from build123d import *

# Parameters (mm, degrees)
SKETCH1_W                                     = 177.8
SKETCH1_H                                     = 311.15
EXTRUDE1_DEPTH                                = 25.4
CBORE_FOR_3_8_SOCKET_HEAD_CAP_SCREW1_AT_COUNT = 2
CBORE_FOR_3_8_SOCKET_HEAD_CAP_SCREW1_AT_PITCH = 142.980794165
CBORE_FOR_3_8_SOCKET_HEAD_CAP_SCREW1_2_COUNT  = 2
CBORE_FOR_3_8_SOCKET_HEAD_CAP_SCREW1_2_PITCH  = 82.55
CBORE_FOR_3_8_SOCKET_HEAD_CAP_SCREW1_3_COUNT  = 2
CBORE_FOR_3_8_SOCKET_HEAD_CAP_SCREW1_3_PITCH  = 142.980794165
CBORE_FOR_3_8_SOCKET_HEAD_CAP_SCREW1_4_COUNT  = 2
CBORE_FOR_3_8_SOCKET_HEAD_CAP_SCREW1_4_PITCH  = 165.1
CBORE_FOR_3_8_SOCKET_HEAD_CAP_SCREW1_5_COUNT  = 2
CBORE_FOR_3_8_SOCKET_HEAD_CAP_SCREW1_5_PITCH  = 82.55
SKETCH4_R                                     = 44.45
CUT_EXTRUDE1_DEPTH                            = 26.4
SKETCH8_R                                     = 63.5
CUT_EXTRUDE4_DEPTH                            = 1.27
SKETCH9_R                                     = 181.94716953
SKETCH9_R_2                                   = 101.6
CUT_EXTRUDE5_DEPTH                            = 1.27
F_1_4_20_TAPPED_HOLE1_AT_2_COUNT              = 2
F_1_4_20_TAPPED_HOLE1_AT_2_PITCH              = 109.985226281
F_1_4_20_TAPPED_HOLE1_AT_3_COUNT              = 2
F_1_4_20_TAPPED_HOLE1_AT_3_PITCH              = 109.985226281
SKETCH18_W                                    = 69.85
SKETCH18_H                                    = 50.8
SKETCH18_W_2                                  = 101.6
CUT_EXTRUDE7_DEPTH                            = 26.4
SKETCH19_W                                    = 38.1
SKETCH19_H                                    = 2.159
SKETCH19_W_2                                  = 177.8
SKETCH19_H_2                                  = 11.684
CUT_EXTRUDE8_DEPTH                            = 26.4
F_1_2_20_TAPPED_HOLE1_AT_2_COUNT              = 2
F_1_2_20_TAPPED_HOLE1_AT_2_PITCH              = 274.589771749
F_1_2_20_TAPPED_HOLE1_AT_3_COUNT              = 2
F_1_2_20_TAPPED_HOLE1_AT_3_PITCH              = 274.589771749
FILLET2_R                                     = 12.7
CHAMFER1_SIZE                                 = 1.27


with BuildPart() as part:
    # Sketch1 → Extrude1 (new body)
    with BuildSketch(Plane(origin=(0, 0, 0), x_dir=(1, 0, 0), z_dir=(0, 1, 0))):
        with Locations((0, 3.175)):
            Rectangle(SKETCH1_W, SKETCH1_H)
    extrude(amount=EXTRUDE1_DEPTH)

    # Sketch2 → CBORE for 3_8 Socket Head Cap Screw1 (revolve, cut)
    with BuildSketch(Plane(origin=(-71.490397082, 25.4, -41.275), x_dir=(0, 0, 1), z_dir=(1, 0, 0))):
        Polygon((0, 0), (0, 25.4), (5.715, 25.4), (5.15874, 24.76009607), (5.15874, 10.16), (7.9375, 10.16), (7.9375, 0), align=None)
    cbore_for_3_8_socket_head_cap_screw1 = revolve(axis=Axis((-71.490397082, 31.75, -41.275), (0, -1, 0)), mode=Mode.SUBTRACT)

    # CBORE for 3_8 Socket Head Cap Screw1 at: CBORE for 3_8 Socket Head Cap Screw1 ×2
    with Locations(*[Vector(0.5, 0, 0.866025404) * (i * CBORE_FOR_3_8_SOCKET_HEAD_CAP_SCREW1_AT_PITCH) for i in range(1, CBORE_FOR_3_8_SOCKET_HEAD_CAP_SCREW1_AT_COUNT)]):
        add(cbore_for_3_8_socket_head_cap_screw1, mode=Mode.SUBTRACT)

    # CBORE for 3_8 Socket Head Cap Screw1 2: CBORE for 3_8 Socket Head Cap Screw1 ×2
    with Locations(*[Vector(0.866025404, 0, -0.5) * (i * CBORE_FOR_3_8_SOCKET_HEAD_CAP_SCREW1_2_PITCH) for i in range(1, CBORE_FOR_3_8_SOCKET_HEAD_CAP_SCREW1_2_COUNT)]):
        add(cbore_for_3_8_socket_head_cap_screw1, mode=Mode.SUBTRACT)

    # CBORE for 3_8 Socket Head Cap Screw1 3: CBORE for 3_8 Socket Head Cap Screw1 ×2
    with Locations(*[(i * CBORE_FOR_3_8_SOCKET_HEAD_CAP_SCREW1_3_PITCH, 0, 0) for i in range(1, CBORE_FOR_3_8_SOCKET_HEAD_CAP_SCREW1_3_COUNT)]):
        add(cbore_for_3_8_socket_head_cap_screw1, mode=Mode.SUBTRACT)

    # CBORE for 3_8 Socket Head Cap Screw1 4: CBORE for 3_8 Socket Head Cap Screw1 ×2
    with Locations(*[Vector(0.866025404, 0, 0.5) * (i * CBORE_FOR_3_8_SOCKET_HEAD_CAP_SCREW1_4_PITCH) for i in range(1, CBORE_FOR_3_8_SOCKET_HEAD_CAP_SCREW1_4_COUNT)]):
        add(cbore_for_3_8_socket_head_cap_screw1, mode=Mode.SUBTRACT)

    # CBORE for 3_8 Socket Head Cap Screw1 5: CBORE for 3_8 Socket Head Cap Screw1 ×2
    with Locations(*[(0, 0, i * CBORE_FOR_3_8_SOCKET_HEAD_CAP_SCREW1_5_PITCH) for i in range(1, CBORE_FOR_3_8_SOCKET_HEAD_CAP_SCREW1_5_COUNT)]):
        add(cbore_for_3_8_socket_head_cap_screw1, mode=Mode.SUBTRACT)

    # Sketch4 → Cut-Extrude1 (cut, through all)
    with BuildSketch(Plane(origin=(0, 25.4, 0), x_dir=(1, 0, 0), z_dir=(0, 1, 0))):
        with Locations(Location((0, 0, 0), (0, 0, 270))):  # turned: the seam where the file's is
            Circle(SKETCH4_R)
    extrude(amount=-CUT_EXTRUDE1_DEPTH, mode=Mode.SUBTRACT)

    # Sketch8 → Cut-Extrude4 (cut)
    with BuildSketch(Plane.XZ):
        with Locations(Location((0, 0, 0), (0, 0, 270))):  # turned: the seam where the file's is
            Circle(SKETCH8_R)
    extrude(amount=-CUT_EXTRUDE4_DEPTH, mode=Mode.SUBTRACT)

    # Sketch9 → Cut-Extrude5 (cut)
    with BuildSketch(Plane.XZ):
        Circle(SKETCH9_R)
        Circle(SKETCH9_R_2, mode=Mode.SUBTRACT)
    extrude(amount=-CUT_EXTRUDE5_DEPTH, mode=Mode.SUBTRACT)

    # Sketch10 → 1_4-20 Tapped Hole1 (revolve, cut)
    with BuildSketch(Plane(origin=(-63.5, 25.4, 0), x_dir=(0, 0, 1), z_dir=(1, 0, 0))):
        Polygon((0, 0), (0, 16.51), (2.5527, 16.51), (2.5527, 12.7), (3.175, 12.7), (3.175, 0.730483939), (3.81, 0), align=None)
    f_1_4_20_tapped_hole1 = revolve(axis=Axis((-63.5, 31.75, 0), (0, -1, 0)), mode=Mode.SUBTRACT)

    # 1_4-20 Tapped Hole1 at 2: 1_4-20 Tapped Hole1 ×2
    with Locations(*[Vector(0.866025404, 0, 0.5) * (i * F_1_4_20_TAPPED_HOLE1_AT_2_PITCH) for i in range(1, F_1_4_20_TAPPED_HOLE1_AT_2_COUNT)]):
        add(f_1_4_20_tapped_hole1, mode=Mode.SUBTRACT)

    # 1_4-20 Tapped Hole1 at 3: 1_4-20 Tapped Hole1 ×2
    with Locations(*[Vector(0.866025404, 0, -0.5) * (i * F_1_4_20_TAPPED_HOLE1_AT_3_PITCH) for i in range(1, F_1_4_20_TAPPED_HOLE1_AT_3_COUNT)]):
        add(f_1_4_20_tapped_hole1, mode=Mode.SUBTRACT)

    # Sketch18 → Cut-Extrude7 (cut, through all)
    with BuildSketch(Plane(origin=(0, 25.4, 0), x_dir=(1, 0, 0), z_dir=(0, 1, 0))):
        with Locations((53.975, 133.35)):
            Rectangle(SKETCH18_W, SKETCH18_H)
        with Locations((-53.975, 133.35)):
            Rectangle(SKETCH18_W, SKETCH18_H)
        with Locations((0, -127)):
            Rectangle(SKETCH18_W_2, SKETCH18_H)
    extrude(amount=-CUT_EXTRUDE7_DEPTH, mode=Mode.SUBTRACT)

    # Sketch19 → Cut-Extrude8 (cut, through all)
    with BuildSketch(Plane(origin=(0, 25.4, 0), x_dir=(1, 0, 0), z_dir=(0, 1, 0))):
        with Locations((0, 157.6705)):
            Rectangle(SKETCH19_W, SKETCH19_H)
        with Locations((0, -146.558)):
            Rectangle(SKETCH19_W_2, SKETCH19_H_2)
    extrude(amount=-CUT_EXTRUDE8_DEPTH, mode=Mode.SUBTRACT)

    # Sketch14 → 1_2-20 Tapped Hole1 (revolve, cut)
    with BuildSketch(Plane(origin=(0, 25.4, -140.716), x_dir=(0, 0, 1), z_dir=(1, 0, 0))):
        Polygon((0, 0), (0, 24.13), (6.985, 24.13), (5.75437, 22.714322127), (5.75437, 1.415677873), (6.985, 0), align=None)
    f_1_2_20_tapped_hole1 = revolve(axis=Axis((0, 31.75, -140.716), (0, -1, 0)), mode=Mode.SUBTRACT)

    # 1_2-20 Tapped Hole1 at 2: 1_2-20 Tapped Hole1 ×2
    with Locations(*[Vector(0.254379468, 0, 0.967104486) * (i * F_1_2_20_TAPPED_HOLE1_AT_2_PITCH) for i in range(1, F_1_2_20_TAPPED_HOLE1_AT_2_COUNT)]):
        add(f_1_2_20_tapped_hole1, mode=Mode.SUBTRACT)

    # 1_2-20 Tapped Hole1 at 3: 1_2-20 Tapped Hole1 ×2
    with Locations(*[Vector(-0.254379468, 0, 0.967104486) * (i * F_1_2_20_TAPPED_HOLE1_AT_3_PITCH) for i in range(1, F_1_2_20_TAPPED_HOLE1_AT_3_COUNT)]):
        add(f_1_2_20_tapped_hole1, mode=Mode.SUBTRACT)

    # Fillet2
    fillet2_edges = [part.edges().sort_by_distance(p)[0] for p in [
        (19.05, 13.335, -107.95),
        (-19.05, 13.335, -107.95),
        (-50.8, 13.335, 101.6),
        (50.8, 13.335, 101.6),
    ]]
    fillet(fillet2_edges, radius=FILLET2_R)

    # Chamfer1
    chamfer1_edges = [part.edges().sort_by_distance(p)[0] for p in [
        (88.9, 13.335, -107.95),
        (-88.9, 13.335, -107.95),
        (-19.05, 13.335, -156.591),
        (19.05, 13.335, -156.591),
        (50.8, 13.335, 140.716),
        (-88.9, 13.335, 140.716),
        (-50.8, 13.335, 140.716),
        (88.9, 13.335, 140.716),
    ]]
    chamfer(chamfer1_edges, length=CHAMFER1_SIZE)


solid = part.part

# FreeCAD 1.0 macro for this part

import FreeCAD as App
import Part
import Sketcher

V = App.Vector
Q = App.Units.Quantity


def edges_at(feature, points):
    """Names of the edges that pass closest to the given points."""
    edges = feature.Shape.Edges
    near = lambda p: min(range(len(edges)), key=lambda i: edges[i].distToShape(Part.Vertex(*p))[0])
    return sorted({f"Edge{near(p) + 1}" for p in points})


def add_polygon(sketch, points):
    """Adds a closed chain of lines whose ends are joined by coincident constraints."""
    first, n = sketch.GeometryCount, len(points)
    for a, b in zip(points, points[1:] + points[:1]):
        sketch.addGeometry(Part.LineSegment(App.Vector(*a, 0), App.Vector(*b, 0)), False)
    for i in range(n):
        sketch.addConstraint(Sketcher.Constraint("Coincident", first + i, 2, first + (i + 1) % n, 1))

doc = App.newDocument("Part")
body = doc.addObject("PartDesign::Body", "Body")

# Sketch on XZ plane
sketch1 = doc.addObject("Sketcher::SketchObject", "Sketch")
body.addObject(sketch1)
sketch1.AttachmentSupport = (doc.XZ_Plane, [""])
sketch1.MapMode = "FlatFace"
add_polygon(sketch1, [(-89, -159), (-89, 152), (89, 152), (89, -159)])  # lines 0-3
sketch1.addConstraint(Sketcher.Constraint("Vertical", 0))
sketch1.addConstraint(Sketcher.Constraint("Horizontal", 1))
sketch1.addConstraint(Sketcher.Constraint("Vertical", 2))
sketch1.addConstraint(Sketcher.Constraint("Horizontal", 3))
sketch1.addConstraint(Sketcher.Constraint("DistanceX", 1, 1, 1, 2, Q("7 in")))
sketch1.addConstraint(Sketcher.Constraint("DistanceY", -1, 1, 0, 2, Q("6 in")))
sketch1.addConstraint(Sketcher.Constraint("DistanceY", 0, 1, 0, 2, Q("12.25 in")))
sketch1.addConstraint(Sketcher.Constraint("DistanceX", 0, 2, -1, 1, Q("3.5 in")))
pad1 = doc.addObject("PartDesign::Pad", "Pad")
body.addObject(pad1)
pad1.Profile = sketch1
pad1.Length = Q("1 in")
pad1.Reversed = True

# Sketch on YZ plane
sketch2 = doc.addObject("Sketcher::SketchObject", "Sketch001")
body.addObject(sketch2)
sketch2.AttachmentSupport = (doc.YZ_Plane, [""])
sketch2.MapMode = "FlatFace"
sketch2.AttachmentOffset = App.Placement(V(0, 0, -71.490397), App.Rotation())
add_polygon(sketch2, [(0, -41.3), (25.4, -41.3), (25.4, -33.3), (15.2, -33.3), (15.2, -36.1), (0.6, -36.1), (0, -35.6)])  # lines 0-6
sketch2.addGeometry(Part.LineSegment(V(25.4, -41.3, 0), V(0, -41.3, 0)), True)  # axis
sketch2.addConstraint(Sketcher.Constraint("Horizontal", 0))
sketch2.addConstraint(Sketcher.Constraint("Vertical", 1))
sketch2.addConstraint(Sketcher.Constraint("Horizontal", 2))
sketch2.addConstraint(Sketcher.Constraint("Vertical", 3))
sketch2.addConstraint(Sketcher.Constraint("Horizontal", 4))
sketch2.addConstraint(Sketcher.Constraint("Vertical", 6))
sketch2.addConstraint(Sketcher.Constraint("Horizontal", 7))
sketch2.addConstraint(Sketcher.Constraint("Coincident", 7, 1, 0, 2))
sketch2.addConstraint(Sketcher.Constraint("PointOnObject", 5, 2, -2))
sketch2.addConstraint(Sketcher.Constraint("PointOnObject", 7, 2, -2))
sketch2.addConstraint(Sketcher.Constraint("DistanceX", 0, 1, 0, 2, Q("1 in")))
sketch2.addConstraint(Sketcher.Constraint("DistanceX", 2, 2, 2, 1, Q("0.4 in")))
sketch2.addConstraint(Sketcher.Constraint("Angle", 5, Q("139 deg")))
sketch2.addConstraint(Sketcher.Constraint("DistanceY", 5, 2, -1, 1, Q("1.4 in")))
sketch2.addConstraint(Sketcher.Constraint("DistanceY", 1, 1, 1, 2, Q("0.3125 in")))
sketch2.addConstraint(Sketcher.Constraint("DistanceY", 6, 2, 6, 1, Q("0.225 in")))
sketch2.addConstraint(Sketcher.Constraint("DistanceY", 3, 2, 3, 1, Q("0.1094 in")))
groove = doc.addObject("PartDesign::Groove", "Groove")
body.addObject(groove)
groove.Profile = sketch2
groove.ReferenceAxis = (sketch2, ["Axis0"])
groove.Angle = 360
doc.recompute()

datumline = doc.addObject("PartDesign::Line", "DatumLine")
body.addObject(datumline)
datumline.Placement = App.Placement(V(0, 0, 0), App.Rotation(V(0, 0, 1), V(0.5, 0, 0.866025404)))
linearpattern = doc.addObject("PartDesign::LinearPattern", "LinearPattern")
body.addObject(linearpattern)
linearpattern.Originals = [groove]
linearpattern.Direction = (datumline, [""])
linearpattern.Mode = "offset"
linearpattern.Offset = 142.980794
linearpattern.Occurrences = 2
body.Tip = linearpattern
doc.recompute()

datumline2 = doc.addObject("PartDesign::Line", "DatumLine001")
body.addObject(datumline2)
datumline2.Placement = App.Placement(V(0, 0, 0), App.Rotation(V(0, 0, 1), V(0.866025404, 0, -0.5)))
linearpattern2 = doc.addObject("PartDesign::LinearPattern", "LinearPattern001")
body.addObject(linearpattern2)
linearpattern2.Originals = [groove]
linearpattern2.Direction = (datumline2, [""])
linearpattern2.Mode = "offset"
linearpattern2.Offset = Q("3.25 in")
linearpattern2.Occurrences = 2
body.Tip = linearpattern2
doc.recompute()

linearpattern3 = doc.addObject("PartDesign::LinearPattern", "LinearPattern002")
body.addObject(linearpattern3)
linearpattern3.Originals = [groove]
linearpattern3.Direction = (doc.X_Axis, [""])
linearpattern3.Mode = "offset"
linearpattern3.Offset = 142.980794
linearpattern3.Occurrences = 2
body.Tip = linearpattern3
doc.recompute()

datumline3 = doc.addObject("PartDesign::Line", "DatumLine002")
body.addObject(datumline3)
datumline3.Placement = App.Placement(V(0, 0, 0), App.Rotation(V(0, 0, 1), V(0.866025404, 0, 0.5)))
linearpattern4 = doc.addObject("PartDesign::LinearPattern", "LinearPattern003")
body.addObject(linearpattern4)
linearpattern4.Originals = [groove]
linearpattern4.Direction = (datumline3, [""])
linearpattern4.Mode = "offset"
linearpattern4.Offset = Q("6.5 in")
linearpattern4.Occurrences = 2
body.Tip = linearpattern4
doc.recompute()

linearpattern5 = doc.addObject("PartDesign::LinearPattern", "LinearPattern004")
body.addObject(linearpattern5)
linearpattern5.Originals = [groove]
linearpattern5.Direction = (doc.Z_Axis, [""])
linearpattern5.Mode = "offset"
linearpattern5.Offset = Q("3.25 in")
linearpattern5.Occurrences = 2
body.Tip = linearpattern5

# Sketch on XZ plane
sketch3 = doc.addObject("Sketcher::SketchObject", "Sketch002")
body.addObject(sketch3)
sketch3.AttachmentSupport = (doc.XZ_Plane, [""])
sketch3.MapMode = "FlatFace"
sketch3.AttachmentOffset = App.Placement(V(0, 0, -1 * 25.4), App.Rotation())
sketch3.addGeometry(Part.Circle(V(0, 0, 0), V(0, 0, 1), 44), False)
sketch3.addConstraint(Sketcher.Constraint("Coincident", 0, 3, -1, 1))
sketch3.addConstraint(Sketcher.Constraint("Diameter", 0, Q("3.5 in")))
pocket1 = doc.addObject("PartDesign::Pocket", "Pocket")
body.addObject(pocket1)
pocket1.Profile = sketch3
pocket1.Type = "ThroughAll"
pocket1.Reversed = True

# Sketch on XZ plane
sketch4 = doc.addObject("Sketcher::SketchObject", "Sketch003")
body.addObject(sketch4)
sketch4.AttachmentSupport = (doc.XZ_Plane, [""])
sketch4.MapMode = "FlatFace"
sketch4.addGeometry(Part.Circle(V(0, 0, 0), V(0, 0, 1), 64), False)
sketch4.addConstraint(Sketcher.Constraint("Coincident", 0, 3, -1, 1))
sketch4.addConstraint(Sketcher.Constraint("Diameter", 0, Q("5 in")))
pocket2 = doc.addObject("PartDesign::Pocket", "Pocket001")
body.addObject(pocket2)
pocket2.Profile = sketch4
pocket2.Length = Q("0.05 in")

# Sketch on XZ plane
sketch5 = doc.addObject("Sketcher::SketchObject", "Sketch004")
body.addObject(sketch5)
sketch5.AttachmentSupport = (doc.XZ_Plane, [""])
sketch5.MapMode = "FlatFace"
sketch5.addGeometry(Part.Circle(V(0, 0, 0), V(0, 0, 1), 182), False)
sketch5.addGeometry(Part.Circle(V(0, 0, 0), V(0, 0, 1), 102), False)
sketch5.addConstraint(Sketcher.Constraint("Coincident", 0, 3, -1, 1))
sketch5.addConstraint(Sketcher.Constraint("Coincident", 1, 3, -1, 1))
sketch5.addConstraint(Sketcher.Constraint("Diameter", 1, Q("8 in")))
sketch5.addConstraint(Sketcher.Constraint("Diameter", 0, Q("363.894339 mm")))
pocket3 = doc.addObject("PartDesign::Pocket", "Pocket002")
body.addObject(pocket3)
pocket3.Profile = sketch5
pocket3.Length = Q("0.05 in")

# Sketch on YZ plane
sketch6 = doc.addObject("Sketcher::SketchObject", "Sketch005")
body.addObject(sketch6)
sketch6.AttachmentSupport = (doc.YZ_Plane, [""])
sketch6.MapMode = "FlatFace"
sketch6.AttachmentOffset = App.Placement(V(0, 0, -2.5 * 25.4), App.Rotation())
add_polygon(sketch6, [(8.9, 0), (25.4, 0), (25.4, 3.8), (24.7, 3.2), (12.7, 3.2), (12.7, 2.6), (8.9, 2.6)])  # lines 0-6
sketch6.addConstraint(Sketcher.Constraint("Horizontal", 0))
sketch6.addConstraint(Sketcher.Constraint("Vertical", 1))
sketch6.addConstraint(Sketcher.Constraint("Horizontal", 3))
sketch6.addConstraint(Sketcher.Constraint("Vertical", 4))
sketch6.addConstraint(Sketcher.Constraint("Horizontal", 5))
sketch6.addConstraint(Sketcher.Constraint("Vertical", 6))
sketch6.addConstraint(Sketcher.Constraint("PointOnObject", 0, 2, -1))
sketch6.addConstraint(Sketcher.Constraint("Equal", 5, 1))
sketch6.addConstraint(Sketcher.Constraint("DistanceX", -1, 1, 0, 2, Q("1 in")))
sketch6.addConstraint(Sketcher.Constraint("Angle", 2, Q("-139 deg")))
sketch6.addConstraint(Sketcher.Constraint("DistanceX", 0, 1, 0, 2, Q("0.65 in")))
sketch6.addConstraint(Sketcher.Constraint("DistanceX", 5, 2, 5, 1, Q("0.15 in")))
sketch6.addConstraint(Sketcher.Constraint("DistanceY", 4, 2, 4, 1, Q("0.0245 in")))
sketch6.addConstraint(Sketcher.Constraint("DistanceY", 6, 2, 6, 1, Q("0.1005 in")))
groove2 = doc.addObject("PartDesign::Groove", "Groove001")
body.addObject(groove2)
groove2.Profile = sketch6
groove2.ReferenceAxis = (sketch6, ["H_Axis"])
groove2.Angle = 360
doc.recompute()

datumline4 = doc.addObject("PartDesign::Line", "DatumLine003")
body.addObject(datumline4)
datumline4.Placement = App.Placement(V(0, 0, 0), App.Rotation(V(0, 0, 1), V(0.866025404, 0, 0.5)))
linearpattern6 = doc.addObject("PartDesign::LinearPattern", "LinearPattern005")
body.addObject(linearpattern6)
linearpattern6.Originals = [groove2]
linearpattern6.Direction = (datumline4, [""])
linearpattern6.Mode = "offset"
linearpattern6.Offset = 109.985226
linearpattern6.Occurrences = 2
body.Tip = linearpattern6
doc.recompute()

datumline5 = doc.addObject("PartDesign::Line", "DatumLine004")
body.addObject(datumline5)
datumline5.Placement = App.Placement(V(0, 0, 0), App.Rotation(V(0, 0, 1), V(0.866025404, 0, -0.5)))
linearpattern7 = doc.addObject("PartDesign::LinearPattern", "LinearPattern006")
body.addObject(linearpattern7)
linearpattern7.Originals = [groove2]
linearpattern7.Direction = (datumline5, [""])
linearpattern7.Mode = "offset"
linearpattern7.Offset = 109.985226
linearpattern7.Occurrences = 2
body.Tip = linearpattern7

# Sketch on XZ plane
sketch7 = doc.addObject("Sketcher::SketchObject", "Sketch006")
body.addObject(sketch7)
sketch7.AttachmentSupport = (doc.XZ_Plane, [""])
sketch7.MapMode = "FlatFace"
sketch7.AttachmentOffset = App.Placement(V(0, 0, -1 * 25.4), App.Rotation())
add_polygon(sketch7, [(19, -159), (19, -108), (89, -108), (89, -159)])  # lines 0-3
add_polygon(sketch7, [(-89, -159), (-89, -108), (-19, -108), (-19, -159)])  # lines 4-7
add_polygon(sketch7, [(-51, 102), (-51, 152), (51, 152), (51, 102)])  # lines 8-11
sketch7.addConstraint(Sketcher.Constraint("Vertical", 0))
sketch7.addConstraint(Sketcher.Constraint("Horizontal", 1))
sketch7.addConstraint(Sketcher.Constraint("Vertical", 2))
sketch7.addConstraint(Sketcher.Constraint("Horizontal", 3))
sketch7.addConstraint(Sketcher.Constraint("Vertical", 4))
sketch7.addConstraint(Sketcher.Constraint("Horizontal", 5))
sketch7.addConstraint(Sketcher.Constraint("Vertical", 6))
sketch7.addConstraint(Sketcher.Constraint("Horizontal", 7))
sketch7.addConstraint(Sketcher.Constraint("Vertical", 8))
sketch7.addConstraint(Sketcher.Constraint("Horizontal", 9))
sketch7.addConstraint(Sketcher.Constraint("Vertical", 10))
sketch7.addConstraint(Sketcher.Constraint("Horizontal", 11))
sketch7.addConstraint(Sketcher.Constraint("Symmetric", 1, 2, 4, 2, -2))
sketch7.addConstraint(Sketcher.Constraint("Symmetric", 3, 2, 6, 2, -2))
sketch7.addConstraint(Sketcher.Constraint("Equal", 6, 8))
sketch7.addConstraint(Sketcher.Constraint("DistanceX", 9, 1, 9, 2, Q("4 in")))
sketch7.addConstraint(Sketcher.Constraint("DistanceY", 0, 1, 0, 2, Q("2 in")))
sketch7.addConstraint(Sketcher.Constraint("DistanceX", 8, 2, -1, 1, Q("2 in")))
sketch7.addConstraint(Sketcher.Constraint("DistanceY", -1, 1, 8, 2, Q("6 in")))
sketch7.addConstraint(Sketcher.Constraint("DistanceX", 4, 2, 1, 2, Q("7 in")))
sketch7.addConstraint(Sketcher.Constraint("DistanceX", 1, 1, 1, 2, Q("2.75 in")))
sketch7.addConstraint(Sketcher.Constraint("DistanceY", 0, 2, -1, 1, Q("4.25 in")))
pocket4 = doc.addObject("PartDesign::Pocket", "Pocket003")
body.addObject(pocket4)
pocket4.Profile = sketch7
pocket4.Type = "ThroughAll"
pocket4.Reversed = True

# Sketch on XZ plane
sketch8 = doc.addObject("Sketcher::SketchObject", "Sketch007")
body.addObject(sketch8)
sketch8.AttachmentSupport = (doc.XZ_Plane, [""])
sketch8.MapMode = "FlatFace"
sketch8.AttachmentOffset = App.Placement(V(0, 0, -1 * 25.4), App.Rotation())
add_polygon(sketch8, [(-19.1, -158.8), (-19.1, -156.6), (19.1, -156.6), (19.1, -158.8)])  # lines 0-3
add_polygon(sketch8, [(-88.9, 140.7), (-88.9, 152.4), (88.9, 152.4), (88.9, 140.7)])  # lines 4-7
sketch8.addConstraint(Sketcher.Constraint("Vertical", 0))
sketch8.addConstraint(Sketcher.Constraint("Horizontal", 1))
sketch8.addConstraint(Sketcher.Constraint("Vertical", 2))
sketch8.addConstraint(Sketcher.Constraint("Horizontal", 3))
sketch8.addConstraint(Sketcher.Constraint("Vertical", 4))
sketch8.addConstraint(Sketcher.Constraint("Horizontal", 5))
sketch8.addConstraint(Sketcher.Constraint("Vertical", 6))
sketch8.addConstraint(Sketcher.Constraint("Horizontal", 7))
sketch8.addConstraint(Sketcher.Constraint("DistanceX", 5, 1, 5, 2, Q("7 in")))
sketch8.addConstraint(Sketcher.Constraint("DistanceX", 1, 1, 1, 2, Q("1.5 in")))
sketch8.addConstraint(Sketcher.Constraint("DistanceY", -1, 1, 4, 2, Q("6 in")))
sketch8.addConstraint(Sketcher.Constraint("DistanceY", 4, 1, 4, 2, Q("0.46 in")))
sketch8.addConstraint(Sketcher.Constraint("DistanceX", 4, 2, -1, 1, Q("3.5 in")))
sketch8.addConstraint(Sketcher.Constraint("DistanceY", 0, 1, 0, 2, Q("0.085 in")))
sketch8.addConstraint(Sketcher.Constraint("DistanceX", 0, 2, -1, 1, Q("0.75 in")))
sketch8.addConstraint(Sketcher.Constraint("DistanceY", 2, 2, -1, 1, Q("6.25 in")))
pocket5 = doc.addObject("PartDesign::Pocket", "Pocket004")
body.addObject(pocket5)
pocket5.Profile = sketch8
pocket5.Type = "ThroughAll"
pocket5.Reversed = True

# Sketch on YZ plane
sketch9 = doc.addObject("Sketcher::SketchObject", "Sketch008")
body.addObject(sketch9)
sketch9.AttachmentSupport = (doc.YZ_Plane, [""])
sketch9.MapMode = "FlatFace"
add_polygon(sketch9, [(1.3, -140.7), (25.4, -140.7), (25.4, -133.7), (24, -135), (2.7, -135), (1.3, -133.7)])  # lines 0-5
sketch9.addGeometry(Part.LineSegment(V(25.4, -140.7, 0), V(1.3, -140.7, 0)), True)  # axis
sketch9.addConstraint(Sketcher.Constraint("Horizontal", 0))
sketch9.addConstraint(Sketcher.Constraint("Vertical", 1))
sketch9.addConstraint(Sketcher.Constraint("Horizontal", 3))
sketch9.addConstraint(Sketcher.Constraint("Vertical", 5))
sketch9.addConstraint(Sketcher.Constraint("Horizontal", 6))
sketch9.addConstraint(Sketcher.Constraint("Coincident", 6, 1, 0, 2))
sketch9.addConstraint(Sketcher.Constraint("Horizontal", 1, 2, 4, 2))
sketch9.addConstraint(Sketcher.Constraint("Vertical", 4, 2, 6, 2))
sketch9.addConstraint(Sketcher.Constraint("Equal", 2, 4))
sketch9.addConstraint(Sketcher.Constraint("DistanceX", -1, 1, 0, 2, Q("1 in")))
sketch9.addConstraint(Sketcher.Constraint("Angle", 2, Q("-139 deg")))
sketch9.addConstraint(Sketcher.Constraint("DistanceX", 0, 1, 0, 2, Q("0.95 in")))
sketch9.addConstraint(Sketcher.Constraint("DistanceY", 1, 1, 1, 2, Q("0.275 in")))
sketch9.addConstraint(Sketcher.Constraint("DistanceY", 0, 2, -1, 1, Q("5.54 in")))
sketch9.addConstraint(Sketcher.Constraint("Distance", 2, Q("1.875792 mm")))
groove3 = doc.addObject("PartDesign::Groove", "Groove002")
body.addObject(groove3)
groove3.Profile = sketch9
groove3.ReferenceAxis = (sketch9, ["Axis0"])
groove3.Angle = 360
doc.recompute()

datumline6 = doc.addObject("PartDesign::Line", "DatumLine005")
body.addObject(datumline6)
datumline6.Placement = App.Placement(V(0, 0, 0), App.Rotation(V(0, 0, 1), V(0.254379468, 0, 0.967104486)))
linearpattern8 = doc.addObject("PartDesign::LinearPattern", "LinearPattern007")
body.addObject(linearpattern8)
linearpattern8.Originals = [groove3]
linearpattern8.Direction = (datumline6, [""])
linearpattern8.Mode = "offset"
linearpattern8.Offset = 274.589772
linearpattern8.Occurrences = 2
body.Tip = linearpattern8
doc.recompute()

datumline7 = doc.addObject("PartDesign::Line", "DatumLine006")
body.addObject(datumline7)
datumline7.Placement = App.Placement(V(0, 0, 0), App.Rotation(V(0, 0, 1), V(-0.254379468, 0, 0.967104486)))
linearpattern9 = doc.addObject("PartDesign::LinearPattern", "LinearPattern008")
body.addObject(linearpattern9)
linearpattern9.Originals = [groove3]
linearpattern9.Direction = (datumline7, [""])
linearpattern9.Mode = "offset"
linearpattern9.Offset = 274.589772
linearpattern9.Occurrences = 2
body.Tip = linearpattern9
doc.recompute()

fillet = doc.addObject("PartDesign::Fillet", "Fillet")
body.addObject(fillet)
fillet.Base = (linearpattern9, edges_at(linearpattern9, [
    (19.05, 13.335, -107.95),
    (-19.05, 13.335, -107.95),
    (-50.8, 13.335, 101.6),
    (50.8, 13.335, 101.6),
]))
fillet.Radius = Q("0.5 in")
doc.recompute()

chamfer = doc.addObject("PartDesign::Chamfer", "Chamfer")
body.addObject(chamfer)
chamfer.Base = (fillet, edges_at(fillet, [
    (88.9, 13.335, -107.95),
    (-88.9, 13.335, -107.95),
    (-19.05, 13.335, -156.591),
    (19.05, 13.335, -156.591),
    (50.8, 13.335, 140.716),
    (-88.9, 13.335, 140.716),
    (-50.8, 13.335, 140.716),
    (88.9, 13.335, 140.716),
]))
chamfer.Size = Q("0.05 in")

doc.recompute()
